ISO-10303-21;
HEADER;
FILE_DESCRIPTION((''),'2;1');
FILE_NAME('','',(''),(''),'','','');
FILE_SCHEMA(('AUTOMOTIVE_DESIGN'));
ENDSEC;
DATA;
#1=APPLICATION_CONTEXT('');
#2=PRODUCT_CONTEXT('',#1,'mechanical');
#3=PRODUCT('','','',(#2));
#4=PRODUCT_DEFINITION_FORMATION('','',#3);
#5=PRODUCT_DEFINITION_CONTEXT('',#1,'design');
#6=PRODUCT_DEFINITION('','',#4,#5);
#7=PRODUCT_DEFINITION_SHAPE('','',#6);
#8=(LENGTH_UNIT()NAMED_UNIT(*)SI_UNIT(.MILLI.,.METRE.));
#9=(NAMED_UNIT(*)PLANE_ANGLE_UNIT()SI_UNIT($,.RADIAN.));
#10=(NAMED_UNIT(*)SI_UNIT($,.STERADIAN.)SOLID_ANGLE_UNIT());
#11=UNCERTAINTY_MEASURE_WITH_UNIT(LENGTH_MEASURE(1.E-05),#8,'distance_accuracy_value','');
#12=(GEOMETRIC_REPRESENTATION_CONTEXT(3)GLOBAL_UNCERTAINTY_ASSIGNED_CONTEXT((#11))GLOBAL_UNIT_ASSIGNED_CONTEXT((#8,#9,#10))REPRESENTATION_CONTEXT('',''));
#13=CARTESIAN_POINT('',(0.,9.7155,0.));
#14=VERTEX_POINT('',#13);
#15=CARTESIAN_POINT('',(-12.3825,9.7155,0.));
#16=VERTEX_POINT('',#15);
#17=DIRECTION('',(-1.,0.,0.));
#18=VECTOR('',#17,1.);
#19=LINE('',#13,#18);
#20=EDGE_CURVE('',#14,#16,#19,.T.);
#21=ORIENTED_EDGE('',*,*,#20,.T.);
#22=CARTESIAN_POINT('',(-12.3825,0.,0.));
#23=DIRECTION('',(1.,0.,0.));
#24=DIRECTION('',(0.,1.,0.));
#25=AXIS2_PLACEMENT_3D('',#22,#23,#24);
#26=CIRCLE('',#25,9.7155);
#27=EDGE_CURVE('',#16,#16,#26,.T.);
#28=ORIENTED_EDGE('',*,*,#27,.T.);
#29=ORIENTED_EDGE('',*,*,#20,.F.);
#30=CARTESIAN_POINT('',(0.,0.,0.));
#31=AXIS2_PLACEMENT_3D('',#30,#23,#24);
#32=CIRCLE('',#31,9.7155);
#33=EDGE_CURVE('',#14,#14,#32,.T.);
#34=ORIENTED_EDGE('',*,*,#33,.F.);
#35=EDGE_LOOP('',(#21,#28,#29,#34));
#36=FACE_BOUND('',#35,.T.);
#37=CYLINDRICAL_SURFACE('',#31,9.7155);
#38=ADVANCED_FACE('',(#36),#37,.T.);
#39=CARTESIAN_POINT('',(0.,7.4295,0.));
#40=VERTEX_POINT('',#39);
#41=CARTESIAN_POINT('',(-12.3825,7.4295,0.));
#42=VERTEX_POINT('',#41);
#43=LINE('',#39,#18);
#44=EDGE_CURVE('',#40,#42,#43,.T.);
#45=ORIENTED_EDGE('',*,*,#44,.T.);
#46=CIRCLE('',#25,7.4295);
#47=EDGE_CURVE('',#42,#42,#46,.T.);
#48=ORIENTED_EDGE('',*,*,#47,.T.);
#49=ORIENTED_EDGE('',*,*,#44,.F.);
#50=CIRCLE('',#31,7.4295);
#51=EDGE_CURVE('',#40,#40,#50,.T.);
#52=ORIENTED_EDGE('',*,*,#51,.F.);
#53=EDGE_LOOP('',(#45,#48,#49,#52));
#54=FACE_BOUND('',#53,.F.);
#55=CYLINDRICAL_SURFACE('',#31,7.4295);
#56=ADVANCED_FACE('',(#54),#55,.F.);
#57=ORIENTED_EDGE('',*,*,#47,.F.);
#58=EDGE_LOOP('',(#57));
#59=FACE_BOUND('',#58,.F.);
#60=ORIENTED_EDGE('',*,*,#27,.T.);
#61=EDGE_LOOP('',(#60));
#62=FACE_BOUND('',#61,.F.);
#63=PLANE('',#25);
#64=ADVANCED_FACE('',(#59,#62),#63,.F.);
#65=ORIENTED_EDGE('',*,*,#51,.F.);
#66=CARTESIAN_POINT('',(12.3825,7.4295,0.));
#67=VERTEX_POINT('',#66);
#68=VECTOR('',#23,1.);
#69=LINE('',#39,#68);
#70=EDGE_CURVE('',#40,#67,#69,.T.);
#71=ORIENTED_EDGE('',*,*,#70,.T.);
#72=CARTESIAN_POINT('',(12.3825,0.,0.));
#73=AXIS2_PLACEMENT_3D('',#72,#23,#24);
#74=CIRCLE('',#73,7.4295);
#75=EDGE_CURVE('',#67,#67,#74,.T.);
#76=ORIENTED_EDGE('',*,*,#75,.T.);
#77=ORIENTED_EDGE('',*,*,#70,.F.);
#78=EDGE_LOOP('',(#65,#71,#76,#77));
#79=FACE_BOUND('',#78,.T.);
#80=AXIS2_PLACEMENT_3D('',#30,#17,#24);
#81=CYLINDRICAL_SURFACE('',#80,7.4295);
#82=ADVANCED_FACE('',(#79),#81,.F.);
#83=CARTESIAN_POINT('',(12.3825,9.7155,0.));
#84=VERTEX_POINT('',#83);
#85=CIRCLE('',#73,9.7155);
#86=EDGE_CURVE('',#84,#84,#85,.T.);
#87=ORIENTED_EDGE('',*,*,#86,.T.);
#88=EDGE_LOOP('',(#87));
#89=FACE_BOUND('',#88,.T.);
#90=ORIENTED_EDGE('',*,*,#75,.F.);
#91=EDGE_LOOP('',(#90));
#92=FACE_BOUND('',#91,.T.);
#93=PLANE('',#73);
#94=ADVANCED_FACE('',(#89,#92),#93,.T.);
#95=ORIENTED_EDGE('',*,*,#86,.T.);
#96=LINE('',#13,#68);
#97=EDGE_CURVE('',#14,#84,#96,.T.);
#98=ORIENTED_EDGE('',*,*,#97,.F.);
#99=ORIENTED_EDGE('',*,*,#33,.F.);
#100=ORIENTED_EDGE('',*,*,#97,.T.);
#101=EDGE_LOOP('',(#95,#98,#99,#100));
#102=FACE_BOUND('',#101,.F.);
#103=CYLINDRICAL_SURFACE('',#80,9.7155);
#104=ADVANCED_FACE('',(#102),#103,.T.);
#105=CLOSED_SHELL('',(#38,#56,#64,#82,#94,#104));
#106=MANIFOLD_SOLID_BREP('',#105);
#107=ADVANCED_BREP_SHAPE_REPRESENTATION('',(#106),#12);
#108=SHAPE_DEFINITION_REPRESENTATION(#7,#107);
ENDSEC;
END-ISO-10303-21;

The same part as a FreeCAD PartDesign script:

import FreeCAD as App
import Part
import Sketcher
Q = App.Units.Quantity

doc = App.newDocument("Part")
params = doc.addObject("Spreadsheet::Sheet", "Params")
for row, (alias, value) in enumerate([
    ("sketch1_diameter", "0.585 in"),
    ("sketch1_diameter2", "0.765 in"),
    ("pad1_length", "0.975 in"),
], start=1):
    params.set(f"A{row}", alias)
    params.set(f"B{row}", "=" + value)
    params.setAlias(f"B{row}", alias)

body = doc.addObject("PartDesign::Body", "Body")

# Sketch on YZ plane
sketch1 = body.newObject("Sketcher::SketchObject", "Sketch")
sketch1.AttachmentSupport = (doc.getObject("YZ_Plane"), [""])
sketch1.MapMode = "FlatFace"
sketch1.addGeometry([
    Part.Circle(App.Vector(0, 0, 0), App.Vector(0, 0, 1), 10),
    Part.Circle(App.Vector(0, 0, 0), App.Vector(0, 0, 1), 7),
], False)
sketch1.addConstraint([
    Sketcher.Constraint("Coincident", 0, 3, -1, 1),
    Sketcher.Constraint("Coincident", 1, 3, -1, 1),
    Sketcher.Constraint("Diameter", 1, Q("0.585 in")),
    Sketcher.Constraint("Diameter", 0, Q("0.765 in")),
])
sketch1.setExpression("Constraints[2]", "Params.sketch1_diameter")
sketch1.setExpression("Constraints[3]", "Params.sketch1_diameter2")
pad1 = body.newObject("PartDesign::Pad", "Pad")
pad1.Profile = sketch1
pad1.setExpression("Length", "Params.pad1_length")
pad1.Midplane = True

doc.recompute()
